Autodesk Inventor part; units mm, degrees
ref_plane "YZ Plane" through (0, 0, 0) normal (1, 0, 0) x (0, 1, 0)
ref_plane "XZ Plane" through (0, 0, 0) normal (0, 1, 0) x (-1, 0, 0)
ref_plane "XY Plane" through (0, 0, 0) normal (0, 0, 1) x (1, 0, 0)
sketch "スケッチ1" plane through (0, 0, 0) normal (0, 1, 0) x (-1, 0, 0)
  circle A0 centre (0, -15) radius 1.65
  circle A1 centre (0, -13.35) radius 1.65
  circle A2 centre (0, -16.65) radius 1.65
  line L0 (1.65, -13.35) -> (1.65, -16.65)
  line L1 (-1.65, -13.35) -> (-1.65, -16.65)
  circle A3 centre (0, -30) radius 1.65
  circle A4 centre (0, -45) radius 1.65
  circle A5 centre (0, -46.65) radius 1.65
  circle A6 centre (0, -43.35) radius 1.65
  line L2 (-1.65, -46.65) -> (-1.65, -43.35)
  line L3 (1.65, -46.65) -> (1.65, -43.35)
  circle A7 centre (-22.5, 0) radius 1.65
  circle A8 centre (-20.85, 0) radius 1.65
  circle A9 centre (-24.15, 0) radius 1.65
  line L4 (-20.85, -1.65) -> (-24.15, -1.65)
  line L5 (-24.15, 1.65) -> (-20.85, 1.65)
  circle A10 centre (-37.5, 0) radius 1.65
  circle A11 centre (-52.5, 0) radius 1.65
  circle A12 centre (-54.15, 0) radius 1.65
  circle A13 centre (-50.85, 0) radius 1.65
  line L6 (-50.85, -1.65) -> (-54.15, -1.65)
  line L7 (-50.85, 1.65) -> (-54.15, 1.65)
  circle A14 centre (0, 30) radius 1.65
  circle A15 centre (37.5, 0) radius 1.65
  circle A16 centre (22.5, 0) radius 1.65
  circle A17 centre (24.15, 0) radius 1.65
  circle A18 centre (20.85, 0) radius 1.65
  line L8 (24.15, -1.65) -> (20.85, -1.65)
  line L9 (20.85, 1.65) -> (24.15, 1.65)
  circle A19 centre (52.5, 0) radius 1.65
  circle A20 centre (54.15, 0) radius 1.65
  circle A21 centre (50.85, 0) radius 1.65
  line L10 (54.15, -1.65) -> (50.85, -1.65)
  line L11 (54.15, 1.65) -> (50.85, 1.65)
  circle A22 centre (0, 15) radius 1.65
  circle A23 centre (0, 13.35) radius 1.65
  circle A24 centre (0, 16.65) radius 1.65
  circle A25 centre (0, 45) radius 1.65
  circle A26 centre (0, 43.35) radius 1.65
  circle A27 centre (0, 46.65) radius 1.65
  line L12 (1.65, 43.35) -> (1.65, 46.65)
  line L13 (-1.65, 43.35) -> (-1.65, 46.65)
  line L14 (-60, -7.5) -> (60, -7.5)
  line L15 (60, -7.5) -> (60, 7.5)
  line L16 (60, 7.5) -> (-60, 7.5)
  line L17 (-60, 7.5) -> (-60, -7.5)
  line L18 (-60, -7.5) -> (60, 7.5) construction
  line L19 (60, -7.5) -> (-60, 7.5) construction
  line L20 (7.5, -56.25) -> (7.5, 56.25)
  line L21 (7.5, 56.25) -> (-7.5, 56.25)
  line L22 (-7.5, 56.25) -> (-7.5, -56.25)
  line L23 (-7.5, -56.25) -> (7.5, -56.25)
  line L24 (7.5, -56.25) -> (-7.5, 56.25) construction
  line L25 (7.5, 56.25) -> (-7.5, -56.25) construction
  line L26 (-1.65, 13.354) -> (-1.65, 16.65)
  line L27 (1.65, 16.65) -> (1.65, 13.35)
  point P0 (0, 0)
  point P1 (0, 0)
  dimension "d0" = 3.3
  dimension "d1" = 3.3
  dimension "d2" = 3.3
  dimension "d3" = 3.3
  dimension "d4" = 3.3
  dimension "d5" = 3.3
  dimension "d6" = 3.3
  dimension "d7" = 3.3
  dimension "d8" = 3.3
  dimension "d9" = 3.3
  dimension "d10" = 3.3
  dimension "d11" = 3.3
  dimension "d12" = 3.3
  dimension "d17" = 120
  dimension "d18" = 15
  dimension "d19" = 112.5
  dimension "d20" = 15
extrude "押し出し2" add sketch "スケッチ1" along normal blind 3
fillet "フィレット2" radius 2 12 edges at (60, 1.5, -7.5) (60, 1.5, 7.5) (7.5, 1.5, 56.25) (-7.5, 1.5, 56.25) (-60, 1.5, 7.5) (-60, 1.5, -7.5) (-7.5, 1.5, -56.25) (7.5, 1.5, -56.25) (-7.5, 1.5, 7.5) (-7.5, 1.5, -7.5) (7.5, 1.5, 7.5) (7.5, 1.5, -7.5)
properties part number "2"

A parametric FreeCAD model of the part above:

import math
import FreeCAD as App
import Part
import Sketcher

V = App.Vector
Q = App.Units.Quantity


def edges_at(feature, points):
    """Names of the edges that pass closest to the given points."""
    edges = feature.Shape.Edges
    near = lambda p: min(range(len(edges)), key=lambda i: edges[i].distToShape(Part.Vertex(*p))[0])
    return sorted({f"Edge{near(p) + 1}" for p in points})

doc = App.newDocument("Part")
body = doc.addObject("PartDesign::Body", "Body")

sketch1 = doc.addObject("Sketcher::SketchObject", "Sketch")
body.addObject(sketch1)
sketch1.AttachmentSupport = (doc.XZ_Plane, [""])
sketch1.MapMode = "FlatFace"
sketch1.addGeometry([
    Part.LineSegment(V(60, 7.5, 0), V(60, -7.5, 0)),
    Part.LineSegment(V(60, -7.5, 0), V(7.5, -7.5, 0)),
    Part.LineSegment(V(7.5, -7.5, 0), V(7.5, -56.25, 0)),
    Part.LineSegment(V(7.5, -56.25, 0), V(-7.5, -56.25, 0)),
    Part.LineSegment(V(-7.5, -56.25, 0), V(-7.5, -7.5, 0)),
    Part.LineSegment(V(-7.5, -7.5, 0), V(-60, -7.5, 0)),
    Part.LineSegment(V(-60, -7.5, 0), V(-60, 7.5, 0)),
    Part.LineSegment(V(-60, 7.5, 0), V(-7.5, 7.5, 0)),
    Part.LineSegment(V(-7.5, 7.5, 0), V(-7.5, 56.25, 0)),
    Part.LineSegment(V(-7.5, 56.25, 0), V(7.5, 56.25, 0)),
    Part.LineSegment(V(7.5, 56.25, 0), V(7.5, 7.5, 0)),
    Part.LineSegment(V(7.5, 7.5, 0), V(60, 7.5, 0)),
    Part.LineSegment(V(54.15, 1.65, 0), V(50.85, 1.65, 0)),
    Part.ArcOfCircle(Part.Circle(V(50.85, 0, 0), V(0, 0, 1), 1.65), math.radians(90), math.radians(270)),
    Part.LineSegment(V(50.85, -1.65, 0), V(54.15, -1.65, 0)),
    Part.ArcOfCircle(Part.Circle(V(54.15, 0, 0), V(0, 0, 1), 1.65), math.radians(-90), math.radians(90)),
    Part.Circle(V(37.5, 0, 0), V(0, 0, 1), 1.65),
    Part.LineSegment(V(24.15, 1.65, 0), V(20.85, 1.65, 0)),
    Part.ArcOfCircle(Part.Circle(V(20.85, 0, 0), V(0, 0, 1), 1.65), math.radians(90), math.radians(270)),
    Part.LineSegment(V(20.85, -1.65, 0), V(24.15, -1.65, 0)),
    Part.ArcOfCircle(Part.Circle(V(24.15, 0, 0), V(0, 0, 1), 1.65), math.radians(-90), math.radians(90)),
    Part.ArcOfCircle(Part.Circle(V(0, -16.65, 0), V(0, 0, 1), 1.65), math.radians(180), math.radians(360)),
    Part.LineSegment(V(1.65, -16.65, 0), V(1.65, -13.35, 0)),
    Part.ArcOfCircle(Part.Circle(V(0, -13.35, 0), V(0, 0, 1), 1.65), math.radians(0), math.radians(180)),
    Part.LineSegment(V(-1.65, -13.35, 0), V(-1.65, -16.65, 0)),
    Part.LineSegment(V(-1.65, -43.35, 0), V(-1.65, -46.65, 0)),
    Part.ArcOfCircle(Part.Circle(V(0, -46.65, 0), V(0, 0, 1), 1.65), math.radians(180), math.radians(360)),
    Part.LineSegment(V(1.65, -46.65, 0), V(1.65, -43.35, 0)),
    Part.ArcOfCircle(Part.Circle(V(0, -43.35, 0), V(0, 0, 1), 1.65), math.radians(0), math.radians(180)),
    Part.Circle(V(0, -30, 0), V(0, 0, 1), 1.65),
    Part.ArcOfCircle(Part.Circle(V(0, 43.35, 0), V(0, 0, 1), 1.65), math.radians(180), math.radians(360)),
    Part.LineSegment(V(1.65, 43.35, 0), V(1.65, 46.65, 0)),
    Part.ArcOfCircle(Part.Circle(V(0, 46.65, 0), V(0, 0, 1), 1.65), math.radians(0), math.radians(180)),
    Part.LineSegment(V(-1.65, 46.65, 0), V(-1.65, 43.35, 0)),
    Part.LineSegment(V(-1.65, 16.65, 0), V(-1.65, 13.35, 0)),
    Part.ArcOfCircle(Part.Circle(V(0, 13.35, 0), V(0, 0, 1), 1.65), math.radians(180), math.radians(360.138899)),
    Part.LineSegment(V(1.65, 13.354, 0), V(1.65, 16.65, 0)),
    Part.ArcOfCircle(Part.Circle(V(0, 16.65, 0), V(0, 0, 1), 1.65), math.radians(0), math.radians(180)),
    Part.Circle(V(0, 30, 0), V(0, 0, 1), 1.65),
    Part.ArcOfCircle(Part.Circle(V(-54.15, 0, 0), V(0, 0, 1), 1.65), math.radians(90), math.radians(270)),
    Part.LineSegment(V(-54.15, -1.65, 0), V(-50.85, -1.65, 0)),
    Part.ArcOfCircle(Part.Circle(V(-50.85, 0, 0), V(0, 0, 1), 1.65), math.radians(-90), math.radians(90)),
    Part.LineSegment(V(-50.85, 1.65, 0), V(-54.15, 1.65, 0)),
    Part.LineSegment(V(-20.85, 1.65, 0), V(-24.15, 1.65, 0)),
    Part.ArcOfCircle(Part.Circle(V(-24.15, 0, 0), V(0, 0, 1), 1.65), math.radians(90), math.radians(270)),
    Part.LineSegment(V(-24.15, -1.65, 0), V(-20.85, -1.65, 0)),
    Part.ArcOfCircle(Part.Circle(V(-20.85, 0, 0), V(0, 0, 1), 1.65), math.radians(-90), math.radians(90)),
    Part.Circle(V(-37.5, 0, 0), V(0, 0, 1), 1.65),
], False)
sketch1.addConstraint([
    Sketcher.Constraint("Coincident", 0, 2, 1, 1),
    Sketcher.Constraint("Coincident", 1, 2, 2, 1),
    Sketcher.Constraint("Coincident", 2, 2, 3, 1),
    Sketcher.Constraint("Coincident", 3, 2, 4, 1),
    Sketcher.Constraint("Coincident", 4, 2, 5, 1),
    Sketcher.Constraint("Coincident", 5, 2, 6, 1),
    Sketcher.Constraint("Coincident", 6, 2, 7, 1),
    Sketcher.Constraint("Coincident", 7, 2, 8, 1),
    Sketcher.Constraint("Coincident", 8, 2, 9, 1),
    Sketcher.Constraint("Coincident", 9, 2, 10, 1),
    Sketcher.Constraint("Coincident", 10, 2, 11, 1),
    Sketcher.Constraint("Coincident", 11, 2, 0, 1),
    Sketcher.Constraint("Tangent", 12, 2, 13, 1),
    Sketcher.Constraint("Tangent", 13, 2, 14, 1),
    Sketcher.Constraint("Tangent", 14, 2, 15, 1),
    Sketcher.Constraint("Tangent", 15, 2, 12, 1),
    Sketcher.Constraint("Tangent", 17, 2, 18, 1),
    Sketcher.Constraint("Tangent", 18, 2, 19, 1),
    Sketcher.Constraint("Tangent", 19, 2, 20, 1),
    Sketcher.Constraint("Tangent", 20, 2, 17, 1),
    Sketcher.Constraint("Tangent", 21, 2, 22, 1),
    Sketcher.Constraint("Tangent", 22, 2, 23, 1),
    Sketcher.Constraint("Tangent", 23, 2, 24, 1),
    Sketcher.Constraint("Tangent", 24, 2, 21, 1),
    Sketcher.Constraint("Tangent", 25, 2, 26, 1),
    Sketcher.Constraint("Tangent", 26, 2, 27, 1),
    Sketcher.Constraint("Tangent", 27, 2, 28, 1),
    Sketcher.Constraint("Tangent", 28, 2, 25, 1),
    Sketcher.Constraint("Tangent", 30, 2, 31, 1),
    Sketcher.Constraint("Tangent", 31, 2, 32, 1),
    Sketcher.Constraint("Tangent", 32, 2, 33, 1),
    Sketcher.Constraint("Tangent", 33, 2, 30, 1),
    Sketcher.Constraint("Tangent", 34, 2, 35, 1),
    Sketcher.Constraint("Coincident", 35, 2, 36, 1),
    Sketcher.Constraint("Tangent", 36, 2, 37, 1),
    Sketcher.Constraint("Tangent", 37, 2, 34, 1),
    Sketcher.Constraint("Tangent", 39, 2, 40, 1),
    Sketcher.Constraint("Tangent", 40, 2, 41, 1),
    Sketcher.Constraint("Tangent", 41, 2, 42, 1),
    Sketcher.Constraint("Tangent", 42, 2, 39, 1),
    Sketcher.Constraint("Tangent", 43, 2, 44, 1),
    Sketcher.Constraint("Tangent", 44, 2, 45, 1),
    Sketcher.Constraint("Tangent", 45, 2, 46, 1),
    Sketcher.Constraint("Tangent", 46, 2, 43, 1),
    Sketcher.Constraint("Vertical", 0),
    Sketcher.Constraint("Horizontal", 1),
    Sketcher.Constraint("Vertical", 2),
    Sketcher.Constraint("Horizontal", 3),
    Sketcher.Constraint("Vertical", 4),
    Sketcher.Constraint("Horizontal", 5),
    Sketcher.Constraint("Vertical", 6),
    Sketcher.Constraint("Horizontal", 7),
    Sketcher.Constraint("Vertical", 8),
    Sketcher.Constraint("Horizontal", 9),
    Sketcher.Constraint("Vertical", 10),
    Sketcher.Constraint("Horizontal", 11),
    Sketcher.Constraint("Horizontal", 12),
    Sketcher.Constraint("Horizontal", 14),
    Sketcher.Constraint("Horizontal", 17),
    Sketcher.Constraint("Horizontal", 19),
    Sketcher.Constraint("Vertical", 22),
    Sketcher.Constraint("Vertical", 24),
    Sketcher.Constraint("Vertical", 25),
    Sketcher.Constraint("Vertical", 27),
    Sketcher.Constraint("Vertical", 31),
    Sketcher.Constraint("Vertical", 33),
    Sketcher.Constraint("Vertical", 34),
    Sketcher.Constraint("Vertical", 36),
    Sketcher.Constraint("Horizontal", 40),
    Sketcher.Constraint("Horizontal", 42),
    Sketcher.Constraint("Horizontal", 43),
    Sketcher.Constraint("Horizontal", 45),
    Sketcher.Constraint("Equal", 15, 16),
    Sketcher.Constraint("Equal", 16, 18),
    Sketcher.Constraint("Equal", 20, 21),
    Sketcher.Constraint("Equal", 23, 26),
    Sketcher.Constraint("Equal", 28, 29),
    Sketcher.Constraint("Equal", 29, 30),
    Sketcher.Constraint("Equal", 32, 35),
    Sketcher.Constraint("Equal", 37, 38),
    Sketcher.Constraint("Equal", 38, 39),
    Sketcher.Constraint("Equal", 41, 44),
    Sketcher.Constraint("Equal", 46, 47),
    Sketcher.Constraint("Symmetric", 28, 3, 30, 3, -1, 1),
    Sketcher.Constraint("Symmetric", 23, 3, 35, 3, -1, 1),
    Sketcher.Constraint("Symmetric", 29, 3, 38, 3, -1, 1),
    Sketcher.Constraint("Symmetric", 15, 3, 39, 3, -1, 1),
    Sketcher.Constraint("Symmetric", 20, 3, 44, 3, -1, 1),
    Sketcher.Constraint("Symmetric", 16, 3, 47, 3, -1, 1),
    Sketcher.Constraint("Symmetric", 0, 2, 6, 2, -1, 1),
    Sketcher.Constraint("Symmetric", 2, 2, 8, 2, -1, 1),
    Sketcher.Constraint("Symmetric", 4, 2, 10, 2, -1, 1),
    Sketcher.Constraint("Symmetric", 13, 3, 41, 3, -2),
    Sketcher.Constraint("Symmetric", 18, 3, 46, 3, -2),
    Sketcher.Constraint("Symmetric", 1, 2, 4, 2, -2),
    Sketcher.Constraint("Symmetric", 26, 3, 32, 3, -1),
    Sketcher.Constraint("Symmetric", 21, 3, 37, 3, -1),
    Sketcher.Constraint("PointOnObject", 16, 3, -1),
    Sketcher.Constraint("PointOnObject", 29, 3, -2),
    Sketcher.Constraint("Equal", 14, 17),
    Sketcher.Constraint("Equal", 9, 0),
    Sketcher.Constraint("Equal", 45, 22),
    Sketcher.Constraint("Equal", 24, 25),
    Sketcher.Constraint("Diameter", 16, Q("3.3 mm")),
    Sketcher.Constraint("DistanceX", 3, 2, 3, 1, Q("15 mm")),
    Sketcher.Constraint("DistanceX", 12, 2, 12, 1, Q("3.3 mm")),
    Sketcher.Constraint("DistanceX", 1, 2, 1, 1, Q("52.5 mm")),
    Sketcher.Constraint("DistanceY", 29, 3, -1, 1, Q("30 mm")),
    Sketcher.Constraint("DistanceY", 2, 2, 2, 1, Q("48.75 mm")),
    Sketcher.Constraint("DistanceX", -1, 1, 16, 3, Q("37.5 mm")),
    Sketcher.Constraint("DistanceY", 36, 1, 36, 2, Q("3.296 mm")),
    Sketcher.Constraint("DistanceX", -1, 1, 13, 3, Q("50.85 mm")),
    Sketcher.Constraint("DistanceX", -1, 1, 18, 3, Q("20.85 mm")),
    Sketcher.Constraint("DistanceY", 21, 3, -1, 1, Q("16.65 mm")),
    Sketcher.Constraint("DistanceY", 26, 3, -1, 1, Q("46.65 mm")),
])
pad1 = doc.addObject("PartDesign::Pad", "Pad")
body.addObject(pad1)
pad1.Profile = sketch1
pad1.Length = 3
pad1.Reversed = True
doc.recompute()

fillet = doc.addObject("PartDesign::Fillet", "Fillet")
body.addObject(fillet)
fillet.Base = (pad1, edges_at(pad1, [
    (60, 1.5, -7.5),
    (60, 1.5, 7.5),
    (7.5, 1.5, 56.25),
    (-7.5, 1.5, 56.25),
    (-60, 1.5, 7.5),
    (-60, 1.5, -7.5),
    (-7.5, 1.5, -56.25),
    (7.5, 1.5, -56.25),
    (-7.5, 1.5, 7.5),
    (-7.5, 1.5, -7.5),
    (7.5, 1.5, 7.5),
    (7.5, 1.5, -7.5),
]))
fillet.Radius = 2

doc.recompute()
